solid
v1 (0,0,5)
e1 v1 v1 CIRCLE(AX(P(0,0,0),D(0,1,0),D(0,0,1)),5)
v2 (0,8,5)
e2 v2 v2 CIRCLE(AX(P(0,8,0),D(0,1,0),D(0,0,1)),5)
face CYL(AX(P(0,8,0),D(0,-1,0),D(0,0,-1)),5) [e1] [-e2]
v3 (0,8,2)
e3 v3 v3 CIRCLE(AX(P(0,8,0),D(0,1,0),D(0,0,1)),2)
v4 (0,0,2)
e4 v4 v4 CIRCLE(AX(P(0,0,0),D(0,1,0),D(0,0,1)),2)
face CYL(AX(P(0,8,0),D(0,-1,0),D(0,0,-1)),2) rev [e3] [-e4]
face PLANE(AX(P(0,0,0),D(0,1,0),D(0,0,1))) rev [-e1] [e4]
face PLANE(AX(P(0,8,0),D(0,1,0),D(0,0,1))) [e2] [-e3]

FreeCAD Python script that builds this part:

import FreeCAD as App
import Part
import Sketcher
Q = App.Units.Quantity

doc = App.newDocument("Part")
body = doc.addObject("PartDesign::Body", "Body")

sketch1 = body.newObject("Sketcher::SketchObject", "Sketch")
sketch1.AttachmentSupport = (doc.getObject("XZ_Plane"), [""])
sketch1.MapMode = "FlatFace"
sketch1.addGeometry([
    Part.Circle(App.Vector(0, 0, 0), App.Vector(0, 0, 1), 5),
    Part.Circle(App.Vector(0, 0, 0), App.Vector(0, 0, 1), 2),
], False)
sketch1.addConstraint([
    Sketcher.Constraint("Coincident", 0, 3, -1, 1),
    Sketcher.Constraint("Coincident", 1, 3, -1, 1),
    Sketcher.Constraint("Diameter", 0, Q("10 mm")),
    Sketcher.Constraint("Diameter", 1, Q("4 mm")),
])
pad1 = body.newObject("PartDesign::Pad", "Pad")
pad1.Profile = sketch1
pad1.Length = 8
pad1.Reversed = True

doc.recompute()
